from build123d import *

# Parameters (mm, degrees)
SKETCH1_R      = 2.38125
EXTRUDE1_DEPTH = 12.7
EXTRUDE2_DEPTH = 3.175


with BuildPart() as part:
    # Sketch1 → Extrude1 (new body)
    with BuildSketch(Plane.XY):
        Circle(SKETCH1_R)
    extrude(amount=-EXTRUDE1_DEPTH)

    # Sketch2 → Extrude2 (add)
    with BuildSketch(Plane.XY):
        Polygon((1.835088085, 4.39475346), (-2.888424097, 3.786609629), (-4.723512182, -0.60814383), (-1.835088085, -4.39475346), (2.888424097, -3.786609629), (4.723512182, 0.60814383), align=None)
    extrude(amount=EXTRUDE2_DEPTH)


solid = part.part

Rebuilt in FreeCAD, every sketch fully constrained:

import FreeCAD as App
import Part
import Sketcher
Q = App.Units.Quantity


def add_polygon(sketch, points):
    """Adds a closed chain of lines whose ends are joined by coincident constraints."""
    first, n = sketch.GeometryCount, len(points)
    for a, b in zip(points, points[1:] + points[:1]):
        sketch.addGeometry(Part.LineSegment(App.Vector(*a, 0), App.Vector(*b, 0)), False)
    for i in range(n):
        sketch.addConstraint(Sketcher.Constraint("Coincident", first + i, 2, first + (i + 1) % n, 1))

doc = App.newDocument("Part")
body = doc.addObject("PartDesign::Body", "Body")

# Sketch on XY plane
sketch1 = doc.addObject("Sketcher::SketchObject", "Sketch")
body.addObject(sketch1)
sketch1.AttachmentSupport = (doc.XY_Plane, [""])
sketch1.MapMode = "FlatFace"
sketch1.addGeometry(Part.Circle(App.Vector(0, 0, 0), App.Vector(0, 0, 1), 2.4), False)
sketch1.addConstraint(Sketcher.Constraint("Coincident", 0, 3, -1, 1))
sketch1.addConstraint(Sketcher.Constraint("Diameter", 0, Q("0.1875 in")))
pad1 = doc.addObject("PartDesign::Pad", "Pad")
body.addObject(pad1)
pad1.Profile = sketch1
pad1.Length = Q("0.5 in")
pad1.Reversed = True

# Sketch on XY plane
sketch2 = doc.addObject("Sketcher::SketchObject", "Sketch001")
body.addObject(sketch2)
sketch2.AttachmentSupport = (doc.XY_Plane, [""])
sketch2.MapMode = "FlatFace"
add_polygon(sketch2, [(1.8, 4.4), (-2.9, 3.8), (-4.7, -0.6), (-1.8, -4.4), (2.9, -3.8), (4.7, 0.6)])  # lines 0-5
sketch2.addConstraint(Sketcher.Constraint("Symmetric", 0, 2, 3, 2, -1, 1))
sketch2.addConstraint(Sketcher.Constraint("Symmetric", 1, 2, 4, 2, -1, 1))
sketch2.addConstraint(Sketcher.Constraint("Symmetric", 2, 2, 5, 2, -1, 1))
sketch2.addConstraint(Sketcher.Constraint("Equal", 0, 1))
sketch2.addConstraint(Sketcher.Constraint("Equal", 1, 2))
sketch2.addConstraint(Sketcher.Constraint("Distance", 0, Q("0.1875 in")))
sketch2.addConstraint(Sketcher.Constraint("DistanceX", 2, 2, 4, 2, 6.5586))
sketch2.addConstraint(Sketcher.Constraint("DistanceY", -1, 1, 0, 2, 3.78661))
sketch2.addConstraint(Sketcher.Constraint("DistanceX", 2, 2, -1, 1, 1.835088))
pad2 = doc.addObject("PartDesign::Pad", "Pad001")
body.addObject(pad2)
pad2.Profile = sketch2
pad2.Length = Q("0.125 in")

doc.recompute()
